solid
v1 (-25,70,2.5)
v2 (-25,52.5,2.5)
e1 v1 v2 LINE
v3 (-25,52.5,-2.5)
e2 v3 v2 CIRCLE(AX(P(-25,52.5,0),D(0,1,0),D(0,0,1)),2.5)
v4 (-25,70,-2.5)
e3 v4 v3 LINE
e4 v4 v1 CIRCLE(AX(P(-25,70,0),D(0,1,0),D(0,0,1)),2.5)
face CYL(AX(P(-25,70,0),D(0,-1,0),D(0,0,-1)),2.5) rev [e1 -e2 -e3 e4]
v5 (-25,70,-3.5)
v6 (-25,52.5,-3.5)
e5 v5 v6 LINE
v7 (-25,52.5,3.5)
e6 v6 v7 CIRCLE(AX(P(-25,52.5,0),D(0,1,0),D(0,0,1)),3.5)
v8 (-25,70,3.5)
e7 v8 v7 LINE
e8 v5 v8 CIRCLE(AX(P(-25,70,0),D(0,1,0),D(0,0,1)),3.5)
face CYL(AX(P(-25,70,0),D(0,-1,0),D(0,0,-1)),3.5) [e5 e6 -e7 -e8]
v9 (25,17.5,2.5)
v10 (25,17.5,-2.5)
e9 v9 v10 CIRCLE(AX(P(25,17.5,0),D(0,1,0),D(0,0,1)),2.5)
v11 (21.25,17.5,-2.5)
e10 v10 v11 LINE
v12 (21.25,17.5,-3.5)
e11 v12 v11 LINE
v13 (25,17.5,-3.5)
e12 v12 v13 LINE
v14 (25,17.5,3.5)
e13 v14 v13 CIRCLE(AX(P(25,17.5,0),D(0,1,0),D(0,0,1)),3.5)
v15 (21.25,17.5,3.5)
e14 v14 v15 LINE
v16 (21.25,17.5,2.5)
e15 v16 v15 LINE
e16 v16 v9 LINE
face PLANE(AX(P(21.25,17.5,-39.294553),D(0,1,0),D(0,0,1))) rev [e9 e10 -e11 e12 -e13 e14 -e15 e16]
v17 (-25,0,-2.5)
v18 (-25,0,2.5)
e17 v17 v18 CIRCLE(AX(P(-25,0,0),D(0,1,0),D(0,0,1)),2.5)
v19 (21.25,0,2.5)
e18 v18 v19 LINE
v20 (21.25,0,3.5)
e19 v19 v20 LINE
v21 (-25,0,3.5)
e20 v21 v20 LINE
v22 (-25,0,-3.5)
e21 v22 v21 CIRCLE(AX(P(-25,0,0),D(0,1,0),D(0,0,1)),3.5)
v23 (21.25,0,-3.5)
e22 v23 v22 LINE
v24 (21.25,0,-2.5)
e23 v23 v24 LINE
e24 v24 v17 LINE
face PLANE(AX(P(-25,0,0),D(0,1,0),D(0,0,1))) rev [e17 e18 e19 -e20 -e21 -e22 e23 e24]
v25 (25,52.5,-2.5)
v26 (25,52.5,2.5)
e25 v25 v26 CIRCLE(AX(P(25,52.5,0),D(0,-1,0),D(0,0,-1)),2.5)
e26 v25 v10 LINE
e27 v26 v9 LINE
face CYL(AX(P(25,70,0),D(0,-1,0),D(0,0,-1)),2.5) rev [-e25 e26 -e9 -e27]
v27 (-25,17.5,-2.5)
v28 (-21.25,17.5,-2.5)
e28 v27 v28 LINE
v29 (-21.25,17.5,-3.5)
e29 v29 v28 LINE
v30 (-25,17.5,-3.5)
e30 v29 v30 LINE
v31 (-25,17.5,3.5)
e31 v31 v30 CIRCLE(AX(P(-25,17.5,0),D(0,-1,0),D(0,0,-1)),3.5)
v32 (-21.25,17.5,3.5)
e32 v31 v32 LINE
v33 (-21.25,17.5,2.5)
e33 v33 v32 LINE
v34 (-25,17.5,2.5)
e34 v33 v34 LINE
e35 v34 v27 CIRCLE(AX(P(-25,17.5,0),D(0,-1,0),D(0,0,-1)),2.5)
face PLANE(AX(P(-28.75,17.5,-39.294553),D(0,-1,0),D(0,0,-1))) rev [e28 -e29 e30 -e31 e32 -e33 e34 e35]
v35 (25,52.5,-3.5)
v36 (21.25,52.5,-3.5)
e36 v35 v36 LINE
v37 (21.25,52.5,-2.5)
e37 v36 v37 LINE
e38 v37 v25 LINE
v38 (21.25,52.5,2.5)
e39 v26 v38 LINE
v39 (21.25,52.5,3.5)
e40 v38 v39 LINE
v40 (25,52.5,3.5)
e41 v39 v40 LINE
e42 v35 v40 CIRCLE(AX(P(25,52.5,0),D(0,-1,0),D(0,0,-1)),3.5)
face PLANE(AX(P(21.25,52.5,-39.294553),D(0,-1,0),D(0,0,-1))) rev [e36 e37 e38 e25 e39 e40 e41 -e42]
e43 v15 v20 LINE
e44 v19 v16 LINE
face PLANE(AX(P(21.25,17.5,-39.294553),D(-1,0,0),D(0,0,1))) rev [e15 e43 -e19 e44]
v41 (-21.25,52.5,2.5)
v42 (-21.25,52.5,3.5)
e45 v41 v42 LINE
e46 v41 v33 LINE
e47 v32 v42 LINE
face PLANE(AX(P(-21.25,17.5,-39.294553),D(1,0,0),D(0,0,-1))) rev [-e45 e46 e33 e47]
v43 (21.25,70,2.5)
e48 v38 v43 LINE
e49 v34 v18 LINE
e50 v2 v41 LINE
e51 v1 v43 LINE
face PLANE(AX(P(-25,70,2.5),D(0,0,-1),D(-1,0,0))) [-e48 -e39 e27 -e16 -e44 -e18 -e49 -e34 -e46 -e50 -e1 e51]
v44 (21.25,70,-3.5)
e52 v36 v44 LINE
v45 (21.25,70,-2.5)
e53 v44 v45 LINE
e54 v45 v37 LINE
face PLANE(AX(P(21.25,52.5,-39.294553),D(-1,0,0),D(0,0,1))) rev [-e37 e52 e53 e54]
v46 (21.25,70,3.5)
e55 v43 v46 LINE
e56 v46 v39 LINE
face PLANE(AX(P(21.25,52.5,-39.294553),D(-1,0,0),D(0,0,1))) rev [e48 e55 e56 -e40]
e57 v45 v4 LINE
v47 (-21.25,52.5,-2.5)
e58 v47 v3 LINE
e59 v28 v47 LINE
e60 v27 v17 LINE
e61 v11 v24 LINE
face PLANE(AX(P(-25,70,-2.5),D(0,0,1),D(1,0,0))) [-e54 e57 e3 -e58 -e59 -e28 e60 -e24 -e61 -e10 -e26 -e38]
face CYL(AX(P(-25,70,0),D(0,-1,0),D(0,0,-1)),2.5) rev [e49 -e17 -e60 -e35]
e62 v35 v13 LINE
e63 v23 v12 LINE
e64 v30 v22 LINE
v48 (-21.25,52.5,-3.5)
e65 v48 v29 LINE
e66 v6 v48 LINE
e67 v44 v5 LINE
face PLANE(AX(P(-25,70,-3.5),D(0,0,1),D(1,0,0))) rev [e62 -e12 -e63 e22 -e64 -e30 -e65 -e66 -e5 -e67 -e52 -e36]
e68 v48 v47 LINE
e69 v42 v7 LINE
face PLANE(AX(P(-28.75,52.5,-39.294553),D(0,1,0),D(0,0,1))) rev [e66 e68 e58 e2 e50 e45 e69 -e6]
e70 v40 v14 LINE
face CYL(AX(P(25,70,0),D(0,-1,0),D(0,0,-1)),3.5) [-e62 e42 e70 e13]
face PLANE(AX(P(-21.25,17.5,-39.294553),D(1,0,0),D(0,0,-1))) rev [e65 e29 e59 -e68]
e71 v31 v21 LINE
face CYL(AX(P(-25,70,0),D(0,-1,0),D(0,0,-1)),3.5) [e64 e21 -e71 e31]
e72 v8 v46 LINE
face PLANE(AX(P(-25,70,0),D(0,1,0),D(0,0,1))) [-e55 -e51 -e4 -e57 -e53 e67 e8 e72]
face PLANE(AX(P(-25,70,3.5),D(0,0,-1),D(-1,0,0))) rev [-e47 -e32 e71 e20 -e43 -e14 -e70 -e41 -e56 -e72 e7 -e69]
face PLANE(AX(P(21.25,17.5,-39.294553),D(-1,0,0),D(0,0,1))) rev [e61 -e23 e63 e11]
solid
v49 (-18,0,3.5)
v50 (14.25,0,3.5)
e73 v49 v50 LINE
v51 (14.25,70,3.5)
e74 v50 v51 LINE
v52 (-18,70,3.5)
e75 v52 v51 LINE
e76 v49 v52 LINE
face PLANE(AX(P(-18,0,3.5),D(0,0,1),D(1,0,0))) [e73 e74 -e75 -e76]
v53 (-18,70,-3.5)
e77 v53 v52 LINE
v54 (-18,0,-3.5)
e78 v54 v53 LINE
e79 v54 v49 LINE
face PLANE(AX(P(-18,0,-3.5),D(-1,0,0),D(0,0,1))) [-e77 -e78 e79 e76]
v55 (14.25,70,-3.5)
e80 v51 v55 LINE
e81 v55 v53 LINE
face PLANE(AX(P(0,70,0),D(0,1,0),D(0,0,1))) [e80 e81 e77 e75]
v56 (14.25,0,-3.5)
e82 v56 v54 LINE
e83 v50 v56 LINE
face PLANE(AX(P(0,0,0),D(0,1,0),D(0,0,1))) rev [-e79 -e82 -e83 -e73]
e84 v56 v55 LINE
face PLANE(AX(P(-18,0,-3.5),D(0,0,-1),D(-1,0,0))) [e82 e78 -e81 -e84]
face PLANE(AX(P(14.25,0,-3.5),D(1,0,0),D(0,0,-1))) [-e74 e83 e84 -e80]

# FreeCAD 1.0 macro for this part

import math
import FreeCAD as App
import Part
import Sketcher
from FreeCAD import Vector


def add_polygon(sketch, points):
    """Adds a closed chain of lines whose ends are joined by coincident constraints."""
    first, n = sketch.GeometryCount, len(points)
    for a, b in zip(points, points[1:] + points[:1]):
        sketch.addGeometry(Part.LineSegment(App.Vector(*a, 0), App.Vector(*b, 0)), False)
    for i in range(n):
        sketch.addConstraint(Sketcher.Constraint("Coincident", first + i, 2, first + (i + 1) % n, 1))

doc = App.newDocument("Part")
params = doc.addObject("Spreadsheet::Sheet", "Params")
for row, (alias, value) in enumerate([
    ("sketch1_radius", "3.5 mm"),
    ("sketch1_radius2", "2.5 mm"),
    ("sketch1_width", "50 mm"),
    ("pad1_length", "70 mm"),
    ("sketch2_height", "35 mm"),
    ("sketch2_width", "7.5 mm"),
    ("sketch2_height2", "17.5 mm"),
    ("pocket1_length", "7 mm"),
    ("sketch3_height", "7 mm"),
    ("sketch3_width", "32.25 mm"),
    ("pad2_length", "70 mm"),
], start=1):
    params.set(f"A{row}", alias)
    params.set(f"B{row}", "=" + value)
    params.setAlias(f"B{row}", alias)

body = doc.addObject("PartDesign::Body", "Body")

# Sketch on XZ plane
sketch1 = body.newObject("Sketcher::SketchObject", "Sketch")
sketch1.AttachmentSupport = (doc.getObject("XZ_Plane"), [""])
sketch1.MapMode = "FlatFace"
sketch1.addGeometry([
    Part.LineSegment(Vector(25, -3.5, 0), Vector(-25, -3.5, 0)),  # 0
    Part.ArcOfCircle(Part.Circle(Vector(-25, 0, 0), Vector(0, 0, 1), 3.5), math.radians(90), math.radians(270)),  # 1
    Part.LineSegment(Vector(-25, 3.5, 0), Vector(25, 3.5, 0)),  # 2
    Part.ArcOfCircle(Part.Circle(Vector(25, 0, 0), Vector(0, 0, 1), 3.5), math.radians(-90), math.radians(90)),  # 3
    Part.LineSegment(Vector(-25, -2.5, 0), Vector(25, -2.5, 0)),  # 4
    Part.ArcOfCircle(Part.Circle(Vector(25, 0, 0), Vector(0, 0, 1), 2.5), math.radians(-90), math.radians(90)),  # 5
    Part.LineSegment(Vector(25, 2.5, 0), Vector(-25, 2.5, 0)),  # 6
    Part.ArcOfCircle(Part.Circle(Vector(-25, 0, 0), Vector(0, 0, 1), 2.5), math.radians(90), math.radians(270)),  # 7
], False)
sketch1.addConstraint([
    Sketcher.Constraint("Tangent", 0, 2, 1, 2),
    Sketcher.Constraint("Tangent", 1, 1, 2, 1),
    Sketcher.Constraint("Tangent", 2, 2, 3, 2),
    Sketcher.Constraint("Tangent", 3, 1, 0, 1),
    Sketcher.Constraint("Tangent", 4, 2, 5, 1),
    Sketcher.Constraint("Tangent", 5, 2, 6, 1),
    Sketcher.Constraint("Tangent", 6, 2, 7, 1),
    Sketcher.Constraint("Tangent", 7, 2, 4, 1),
    Sketcher.Constraint("Horizontal", 0),
    Sketcher.Constraint("Horizontal", 2),
    Sketcher.Constraint("Horizontal", 4),
    Sketcher.Constraint("Horizontal", 6),
    Sketcher.Constraint("Coincident", 5, 3, 3, 3),
    Sketcher.Constraint("Symmetric", 1, 3, 3, 3, -1, 1),
    Sketcher.Constraint("Vertical", 7, 3, 0, 2),
    Sketcher.Constraint("Radius", 1, 3.5),
    Sketcher.Constraint("Radius", 5, 2.5),
    Sketcher.Constraint("DistanceX", 0, 2, 0, 1, 50.0),
])
sketch1.setExpression("Constraints[15]", "Params.sketch1_radius")
sketch1.setExpression("Constraints[16]", "Params.sketch1_radius2")
sketch1.setExpression("Constraints[17]", "Params.sketch1_width")
pad1 = body.newObject("PartDesign::Pad", "Pad")
pad1.Profile = sketch1
pad1.setExpression("Length", "Params.pad1_length")
pad1.Reversed = True

# Sketch on XY plane
sketch2 = body.newObject("Sketcher::SketchObject", "Sketch001")
sketch2.AttachmentSupport = (doc.getObject("XY_Plane"), [""])
sketch2.MapMode = "FlatFace"
sketch2.AttachmentOffset = App.Placement(Vector(0, 0, 3.5), App.Rotation())
add_polygon(sketch2, [(21, 70), (21, 52), (29, 52), (29, 70)])  # lines 0-3
add_polygon(sketch2, [(-29, 52), (-29, 18), (-21, 18), (-21, 52)])  # lines 4-7
add_polygon(sketch2, [(21, 18), (21, 0), (29, 0), (29, 18)])  # lines 8-11
sketch2.addConstraint([
    Sketcher.Constraint("Vertical", 0),
    Sketcher.Constraint("Horizontal", 1),
    Sketcher.Constraint("Vertical", 2),
    Sketcher.Constraint("Horizontal", 3),
    Sketcher.Constraint("Vertical", 4),
    Sketcher.Constraint("Horizontal", 5),
    Sketcher.Constraint("Vertical", 6),
    Sketcher.Constraint("Horizontal", 7),
    Sketcher.Constraint("Vertical", 8),
    Sketcher.Constraint("Horizontal", 9),
    Sketcher.Constraint("Vertical", 10),
    Sketcher.Constraint("Horizontal", 11),
    Sketcher.Constraint("Symmetric", 0, 2, 6, 2, -2),
    Sketcher.Constraint("Symmetric", 4, 2, 10, 2, -2),
    Sketcher.Constraint("PointOnObject", 8, 2, -1),
    Sketcher.Constraint("Vertical", 3, 2, 8, 2),
    Sketcher.Constraint("Vertical", 2, 2, 9, 2),
    Sketcher.Constraint("Equal", 2, 8),
    Sketcher.Constraint("DistanceY", 4, 2, 4, 1, 35.0),
    Sketcher.Constraint("DistanceX", 1, 1, 1, 2, 7.5),
    Sketcher.Constraint("DistanceY", 0, 2, 0, 1, 17.5),
    Sketcher.Constraint("DistanceX", 4, 2, 0, 2, 50.0),
])
sketch2.setExpression("Constraints[30]", "Params.sketch2_height")
sketch2.setExpression("Constraints[31]", "Params.sketch2_width")
sketch2.setExpression("Constraints[32]", "Params.sketch2_height2")
pocket1 = body.newObject("PartDesign::Pocket", "Pocket")
pocket1.Profile = sketch2
pocket1.setExpression("Length", "Params.pocket1_length")
body2 = doc.addObject("PartDesign::Body", "Body001")

# Sketch on XZ plane
sketch3 = body2.newObject("Sketcher::SketchObject", "Sketch002")
sketch3.AttachmentSupport = (doc.getObject("XZ_Plane001"), [""])
sketch3.MapMode = "FlatFace"
sketch3.AttachmentOffset = App.Placement(Vector(0, 0, -70), App.Rotation())
add_polygon(sketch3, [(-18, -4), (-18, 4), (14, 4), (14, -4)])  # lines 0-3
sketch3.addConstraint([
    Sketcher.Constraint("Vertical", 0),
    Sketcher.Constraint("Horizontal", 1),
    Sketcher.Constraint("Vertical", 2),
    Sketcher.Constraint("Horizontal", 3),
    Sketcher.Constraint("DistanceY", 0, 1, 0, 2, 7.0),
    Sketcher.Constraint("DistanceX", 0, 2, -1, 1, 18.0),
    Sketcher.Constraint("DistanceX", 1, 1, 1, 2, 32.25),
    Sketcher.Constraint("DistanceY", -1, 1, 0, 2, 3.5),
])
sketch3.setExpression("Constraints[8]", "Params.sketch3_height")
sketch3.setExpression("Constraints[10]", "Params.sketch3_width")
pad2 = body2.newObject("PartDesign::Pad", "Pad001")
pad2.Profile = sketch3
pad2.setExpression("Length", "Params.pad2_length")

doc.recompute()
